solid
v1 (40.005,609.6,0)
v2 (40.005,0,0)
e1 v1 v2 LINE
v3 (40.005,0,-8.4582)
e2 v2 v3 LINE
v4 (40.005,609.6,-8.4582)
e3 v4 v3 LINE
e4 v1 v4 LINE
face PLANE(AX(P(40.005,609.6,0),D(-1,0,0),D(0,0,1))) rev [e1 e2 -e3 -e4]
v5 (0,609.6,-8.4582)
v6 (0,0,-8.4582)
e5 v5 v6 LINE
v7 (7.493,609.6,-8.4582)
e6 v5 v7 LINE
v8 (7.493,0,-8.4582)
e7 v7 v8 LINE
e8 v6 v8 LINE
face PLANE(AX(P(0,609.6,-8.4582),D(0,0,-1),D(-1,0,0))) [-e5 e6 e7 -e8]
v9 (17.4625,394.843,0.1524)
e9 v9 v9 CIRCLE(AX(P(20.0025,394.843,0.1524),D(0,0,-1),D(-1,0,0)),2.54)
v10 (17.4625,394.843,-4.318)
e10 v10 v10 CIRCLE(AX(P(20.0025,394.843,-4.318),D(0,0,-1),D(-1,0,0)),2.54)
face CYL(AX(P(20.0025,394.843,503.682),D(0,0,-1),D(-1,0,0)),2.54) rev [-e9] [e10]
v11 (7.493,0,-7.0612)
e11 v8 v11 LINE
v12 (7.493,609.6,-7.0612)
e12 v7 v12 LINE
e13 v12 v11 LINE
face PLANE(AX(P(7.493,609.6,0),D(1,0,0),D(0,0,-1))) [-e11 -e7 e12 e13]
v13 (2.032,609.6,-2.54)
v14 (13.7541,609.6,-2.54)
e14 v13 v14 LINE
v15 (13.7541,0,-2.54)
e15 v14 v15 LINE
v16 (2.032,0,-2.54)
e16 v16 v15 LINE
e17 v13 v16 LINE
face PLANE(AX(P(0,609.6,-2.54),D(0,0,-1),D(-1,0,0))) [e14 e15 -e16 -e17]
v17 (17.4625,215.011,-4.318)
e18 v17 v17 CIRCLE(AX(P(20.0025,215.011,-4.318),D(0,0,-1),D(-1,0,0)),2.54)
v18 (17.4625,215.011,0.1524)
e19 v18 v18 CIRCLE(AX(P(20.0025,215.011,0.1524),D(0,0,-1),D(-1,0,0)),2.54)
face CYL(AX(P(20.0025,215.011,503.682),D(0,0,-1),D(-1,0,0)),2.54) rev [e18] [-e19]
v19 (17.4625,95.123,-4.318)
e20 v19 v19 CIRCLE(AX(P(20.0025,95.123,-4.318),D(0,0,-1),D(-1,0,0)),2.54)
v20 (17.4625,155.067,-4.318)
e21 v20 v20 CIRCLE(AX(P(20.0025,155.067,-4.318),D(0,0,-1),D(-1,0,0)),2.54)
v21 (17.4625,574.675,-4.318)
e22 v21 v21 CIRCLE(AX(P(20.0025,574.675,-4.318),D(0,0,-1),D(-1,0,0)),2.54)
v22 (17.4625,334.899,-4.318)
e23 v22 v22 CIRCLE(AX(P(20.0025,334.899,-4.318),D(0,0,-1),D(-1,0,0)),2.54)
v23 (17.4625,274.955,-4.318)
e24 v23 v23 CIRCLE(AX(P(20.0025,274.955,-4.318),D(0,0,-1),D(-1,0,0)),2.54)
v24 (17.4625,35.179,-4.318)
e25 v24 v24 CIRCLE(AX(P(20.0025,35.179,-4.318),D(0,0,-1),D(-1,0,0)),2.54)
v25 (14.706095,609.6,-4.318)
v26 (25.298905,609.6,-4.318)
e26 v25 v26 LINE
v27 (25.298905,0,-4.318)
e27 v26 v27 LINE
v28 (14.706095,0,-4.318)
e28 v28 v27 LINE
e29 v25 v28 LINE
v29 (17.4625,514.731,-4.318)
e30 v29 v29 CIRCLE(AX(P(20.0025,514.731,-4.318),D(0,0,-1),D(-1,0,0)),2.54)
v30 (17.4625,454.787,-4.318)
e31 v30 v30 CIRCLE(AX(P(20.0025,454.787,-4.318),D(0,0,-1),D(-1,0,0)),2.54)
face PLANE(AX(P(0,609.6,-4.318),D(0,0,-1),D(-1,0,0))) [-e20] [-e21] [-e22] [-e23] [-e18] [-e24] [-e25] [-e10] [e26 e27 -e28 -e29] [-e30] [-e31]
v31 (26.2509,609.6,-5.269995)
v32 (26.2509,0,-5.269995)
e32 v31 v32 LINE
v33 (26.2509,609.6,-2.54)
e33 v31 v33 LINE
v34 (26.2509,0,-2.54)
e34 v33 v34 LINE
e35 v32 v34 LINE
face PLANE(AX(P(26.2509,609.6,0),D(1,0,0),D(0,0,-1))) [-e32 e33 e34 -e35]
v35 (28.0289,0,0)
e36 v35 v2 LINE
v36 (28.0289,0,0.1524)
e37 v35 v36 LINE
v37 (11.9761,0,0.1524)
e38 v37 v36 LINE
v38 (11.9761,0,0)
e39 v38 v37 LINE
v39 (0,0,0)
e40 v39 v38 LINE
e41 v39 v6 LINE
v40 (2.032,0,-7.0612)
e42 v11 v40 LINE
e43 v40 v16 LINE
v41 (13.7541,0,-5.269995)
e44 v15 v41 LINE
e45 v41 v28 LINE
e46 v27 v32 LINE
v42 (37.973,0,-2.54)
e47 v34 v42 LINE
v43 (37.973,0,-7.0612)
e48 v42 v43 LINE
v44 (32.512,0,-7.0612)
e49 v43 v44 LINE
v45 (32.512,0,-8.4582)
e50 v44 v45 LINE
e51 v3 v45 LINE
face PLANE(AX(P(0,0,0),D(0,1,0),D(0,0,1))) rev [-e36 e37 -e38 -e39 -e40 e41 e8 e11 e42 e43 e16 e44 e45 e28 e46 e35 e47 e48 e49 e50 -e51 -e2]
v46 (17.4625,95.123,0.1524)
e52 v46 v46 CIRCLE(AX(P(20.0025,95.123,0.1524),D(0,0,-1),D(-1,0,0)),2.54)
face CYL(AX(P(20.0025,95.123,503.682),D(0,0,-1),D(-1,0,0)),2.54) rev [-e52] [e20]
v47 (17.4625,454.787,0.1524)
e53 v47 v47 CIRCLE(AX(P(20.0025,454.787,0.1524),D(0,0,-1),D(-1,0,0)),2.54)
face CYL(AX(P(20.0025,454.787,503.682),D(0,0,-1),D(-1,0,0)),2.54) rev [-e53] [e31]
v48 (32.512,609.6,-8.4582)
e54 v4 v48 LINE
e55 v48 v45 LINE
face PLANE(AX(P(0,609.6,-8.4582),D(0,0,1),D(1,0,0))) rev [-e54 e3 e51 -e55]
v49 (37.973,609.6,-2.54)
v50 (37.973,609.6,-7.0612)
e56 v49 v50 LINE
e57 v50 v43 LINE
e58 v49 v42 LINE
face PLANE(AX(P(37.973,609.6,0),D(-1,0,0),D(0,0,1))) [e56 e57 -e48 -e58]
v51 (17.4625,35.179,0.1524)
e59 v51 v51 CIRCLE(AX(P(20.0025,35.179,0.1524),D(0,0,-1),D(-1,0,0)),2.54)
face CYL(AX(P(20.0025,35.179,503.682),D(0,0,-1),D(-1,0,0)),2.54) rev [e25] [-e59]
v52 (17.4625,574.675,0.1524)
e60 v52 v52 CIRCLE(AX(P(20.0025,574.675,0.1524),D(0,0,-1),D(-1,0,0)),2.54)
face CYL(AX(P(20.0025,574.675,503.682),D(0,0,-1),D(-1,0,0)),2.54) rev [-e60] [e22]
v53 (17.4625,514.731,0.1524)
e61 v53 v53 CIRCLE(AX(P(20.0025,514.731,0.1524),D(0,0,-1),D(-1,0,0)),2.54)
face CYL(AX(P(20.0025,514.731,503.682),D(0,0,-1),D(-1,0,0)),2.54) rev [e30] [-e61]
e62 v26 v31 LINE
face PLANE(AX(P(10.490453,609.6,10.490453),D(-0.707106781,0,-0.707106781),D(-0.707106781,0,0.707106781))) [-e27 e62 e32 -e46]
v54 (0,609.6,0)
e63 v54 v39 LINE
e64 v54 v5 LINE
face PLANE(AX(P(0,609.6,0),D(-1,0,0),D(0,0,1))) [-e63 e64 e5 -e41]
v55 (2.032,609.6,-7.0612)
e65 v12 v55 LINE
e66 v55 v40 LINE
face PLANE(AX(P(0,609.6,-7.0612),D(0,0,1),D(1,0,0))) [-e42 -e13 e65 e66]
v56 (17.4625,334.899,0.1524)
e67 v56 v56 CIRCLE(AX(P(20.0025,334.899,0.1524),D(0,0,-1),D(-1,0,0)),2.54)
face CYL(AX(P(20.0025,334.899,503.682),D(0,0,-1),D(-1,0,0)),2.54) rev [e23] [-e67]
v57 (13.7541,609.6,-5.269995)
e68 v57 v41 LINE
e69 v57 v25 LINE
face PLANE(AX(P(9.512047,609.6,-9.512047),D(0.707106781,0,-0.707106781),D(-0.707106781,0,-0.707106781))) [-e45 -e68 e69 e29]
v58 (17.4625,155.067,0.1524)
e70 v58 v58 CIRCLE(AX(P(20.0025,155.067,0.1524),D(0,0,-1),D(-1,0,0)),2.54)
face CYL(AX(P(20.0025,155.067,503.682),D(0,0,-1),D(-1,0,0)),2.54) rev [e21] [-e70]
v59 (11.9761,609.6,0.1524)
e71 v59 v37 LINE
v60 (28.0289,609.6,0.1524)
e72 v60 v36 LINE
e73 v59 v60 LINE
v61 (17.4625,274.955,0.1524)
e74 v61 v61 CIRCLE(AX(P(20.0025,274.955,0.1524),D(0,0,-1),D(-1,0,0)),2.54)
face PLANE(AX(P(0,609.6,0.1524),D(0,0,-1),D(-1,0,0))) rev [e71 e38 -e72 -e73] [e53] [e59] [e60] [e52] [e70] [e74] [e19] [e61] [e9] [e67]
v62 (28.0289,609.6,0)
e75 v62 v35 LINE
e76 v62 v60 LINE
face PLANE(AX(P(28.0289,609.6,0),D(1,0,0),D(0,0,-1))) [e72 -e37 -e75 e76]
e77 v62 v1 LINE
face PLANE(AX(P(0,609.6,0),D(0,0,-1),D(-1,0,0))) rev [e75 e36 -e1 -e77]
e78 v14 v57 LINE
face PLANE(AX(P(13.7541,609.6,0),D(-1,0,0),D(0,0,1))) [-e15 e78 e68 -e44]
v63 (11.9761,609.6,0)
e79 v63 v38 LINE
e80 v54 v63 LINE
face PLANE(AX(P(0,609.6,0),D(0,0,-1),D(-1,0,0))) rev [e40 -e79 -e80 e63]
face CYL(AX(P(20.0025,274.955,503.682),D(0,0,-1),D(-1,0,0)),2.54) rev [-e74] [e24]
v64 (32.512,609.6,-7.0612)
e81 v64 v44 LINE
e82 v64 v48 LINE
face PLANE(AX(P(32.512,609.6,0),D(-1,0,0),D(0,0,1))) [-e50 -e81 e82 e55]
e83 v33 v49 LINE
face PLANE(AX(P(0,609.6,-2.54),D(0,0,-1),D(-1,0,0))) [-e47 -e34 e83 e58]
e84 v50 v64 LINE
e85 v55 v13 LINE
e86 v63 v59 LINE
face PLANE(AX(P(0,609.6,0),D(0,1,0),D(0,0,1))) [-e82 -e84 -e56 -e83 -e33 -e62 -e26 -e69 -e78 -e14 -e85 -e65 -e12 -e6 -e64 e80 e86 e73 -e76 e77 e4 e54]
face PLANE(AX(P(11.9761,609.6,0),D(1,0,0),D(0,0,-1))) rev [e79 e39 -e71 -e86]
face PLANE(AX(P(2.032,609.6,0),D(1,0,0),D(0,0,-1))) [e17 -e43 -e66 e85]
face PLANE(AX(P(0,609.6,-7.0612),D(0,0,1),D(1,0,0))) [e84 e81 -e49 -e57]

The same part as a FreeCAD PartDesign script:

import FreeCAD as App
import Part
import Sketcher
Q = App.Units.Quantity

doc = App.newDocument("Part")
params = doc.addObject("Spreadsheet::Sheet", "Params")
for row, (alias, value) in enumerate([
    ("sketch1_width", "0.215 in"),
    ("sketch1_width2", "0.295 in"),
    ("sketch1_width3", "0.632 in"),
    ("sketch1_height", "0.055 in"),
    ("sketch1_height2", "0.178 in"),
    ("pad1_length", "24 in"),
    ("sketch2_diameter", "0.2 in"),
    ("pocket1_length", "20 in"),
], start=1):
    params.set(f"A{row}", alias)
    params.set(f"B{row}", "=" + value)
    params.setAlias(f"B{row}", alias)

body = doc.addObject("PartDesign::Body", "Body")

sketch1 = body.newObject("Sketcher::SketchObject", "Sketch")
sketch1.AttachmentSupport = (doc.getObject("XZ_Plane"), [""])
sketch1.MapMode = "FlatFace"
sketch1.addGeometry(Part.LineSegment(App.Vector(32.512, -8.4582, 0), App.Vector(32.512, -7.0612, 0)), False)
sketch1.addGeometry(Part.LineSegment(App.Vector(32.512, -7.0612, 0), App.Vector(37.973, -7.0612, 0)), False)
sketch1.addGeometry(Part.LineSegment(App.Vector(37.973, -7.0612, 0), App.Vector(37.973, -2.54, 0)), False)
sketch1.addGeometry(Part.LineSegment(App.Vector(37.973, -2.54, 0), App.Vector(26.2509, -2.54, 0)), False)
sketch1.addGeometry(Part.LineSegment(App.Vector(26.2509, -2.54, 0), App.Vector(26.2509, -5.269995, 0)), False)
sketch1.addGeometry(Part.LineSegment(App.Vector(26.2509, -5.269995, 0), App.Vector(25.298905, -4.318, 0)), False)
sketch1.addGeometry(Part.LineSegment(App.Vector(25.298905, -4.318, 0), App.Vector(14.706095, -4.318, 0)), False)
sketch1.addGeometry(Part.LineSegment(App.Vector(14.706095, -4.318, 0), App.Vector(13.7541, -5.269995, 0)), False)
sketch1.addGeometry(Part.LineSegment(App.Vector(13.7541, -5.269995, 0), App.Vector(13.7541, -2.54, 0)), False)
sketch1.addGeometry(Part.LineSegment(App.Vector(13.7541, -2.54, 0), App.Vector(2.032, -2.54, 0)), False)
sketch1.addGeometry(Part.LineSegment(App.Vector(2.032, -2.54, 0), App.Vector(2.032, -7.0612, 0)), False)
sketch1.addGeometry(Part.LineSegment(App.Vector(2.032, -7.0612, 0), App.Vector(7.493, -7.0612, 0)), False)
sketch1.addGeometry(Part.LineSegment(App.Vector(7.493, -7.0612, 0), App.Vector(7.493, -8.4582, 0)), False)
sketch1.addGeometry(Part.LineSegment(App.Vector(7.493, -8.4582, 0), App.Vector(0, -8.4582, 0)), False)
sketch1.addGeometry(Part.LineSegment(App.Vector(0, -8.4582, 0), App.Vector(0, 0, 0)), False)
sketch1.addGeometry(Part.LineSegment(App.Vector(0, 0, 0), App.Vector(11.9761, 0, 0)), False)
sketch1.addGeometry(Part.LineSegment(App.Vector(11.9761, 0, 0), App.Vector(11.9761, 0.1524, 0)), False)
sketch1.addGeometry(Part.LineSegment(App.Vector(11.9761, 0.1524, 0), App.Vector(28.0289, 0.1524, 0)), False)
sketch1.addGeometry(Part.LineSegment(App.Vector(28.0289, 0.1524, 0), App.Vector(28.0289, 0, 0)), False)
sketch1.addGeometry(Part.LineSegment(App.Vector(28.0289, 0, 0), App.Vector(40.005, 0, 0)), False)
sketch1.addGeometry(Part.LineSegment(App.Vector(40.005, 0, 0), App.Vector(40.005, -8.4582, 0)), False)
sketch1.addGeometry(Part.LineSegment(App.Vector(40.005, -8.4582, 0), App.Vector(32.512, -8.4582, 0)), False)
sketch1.addConstraint(Sketcher.Constraint("Coincident", 0, 2, 1, 1))
sketch1.addConstraint(Sketcher.Constraint("Coincident", 1, 2, 2, 1))
sketch1.addConstraint(Sketcher.Constraint("Coincident", 2, 2, 3, 1))
sketch1.addConstraint(Sketcher.Constraint("Coincident", 3, 2, 4, 1))
sketch1.addConstraint(Sketcher.Constraint("Coincident", 4, 2, 5, 1))
sketch1.addConstraint(Sketcher.Constraint("Coincident", 5, 2, 6, 1))
sketch1.addConstraint(Sketcher.Constraint("Coincident", 6, 2, 7, 1))
sketch1.addConstraint(Sketcher.Constraint("Coincident", 7, 2, 8, 1))
sketch1.addConstraint(Sketcher.Constraint("Coincident", 8, 2, 9, 1))
sketch1.addConstraint(Sketcher.Constraint("Coincident", 9, 2, 10, 1))
sketch1.addConstraint(Sketcher.Constraint("Coincident", 10, 2, 11, 1))
sketch1.addConstraint(Sketcher.Constraint("Coincident", 11, 2, 12, 1))
sketch1.addConstraint(Sketcher.Constraint("Coincident", 12, 2, 13, 1))
sketch1.addConstraint(Sketcher.Constraint("Coincident", 13, 2, 14, 1))
sketch1.addConstraint(Sketcher.Constraint("Coincident", 14, 2, 15, 1))
sketch1.addConstraint(Sketcher.Constraint("Coincident", 15, 2, 16, 1))
sketch1.addConstraint(Sketcher.Constraint("Coincident", 16, 2, 17, 1))
sketch1.addConstraint(Sketcher.Constraint("Coincident", 17, 2, 18, 1))
sketch1.addConstraint(Sketcher.Constraint("Coincident", 18, 2, 19, 1))
sketch1.addConstraint(Sketcher.Constraint("Coincident", 19, 2, 20, 1))
sketch1.addConstraint(Sketcher.Constraint("Coincident", 20, 2, 21, 1))
sketch1.addConstraint(Sketcher.Constraint("Coincident", 21, 2, 0, 1))
sketch1.addConstraint(Sketcher.Constraint("Vertical", 0))
sketch1.addConstraint(Sketcher.Constraint("Horizontal", 1))
sketch1.addConstraint(Sketcher.Constraint("Vertical", 2))
sketch1.addConstraint(Sketcher.Constraint("Horizontal", 3))
sketch1.addConstraint(Sketcher.Constraint("Vertical", 4))
sketch1.addConstraint(Sketcher.Constraint("Horizontal", 6))
sketch1.addConstraint(Sketcher.Constraint("Vertical", 8))
sketch1.addConstraint(Sketcher.Constraint("Horizontal", 9))
sketch1.addConstraint(Sketcher.Constraint("Vertical", 10))
sketch1.addConstraint(Sketcher.Constraint("Horizontal", 11))
sketch1.addConstraint(Sketcher.Constraint("Vertical", 12))
sketch1.addConstraint(Sketcher.Constraint("Horizontal", 13))
sketch1.addConstraint(Sketcher.Constraint("Vertical", 14))
sketch1.addConstraint(Sketcher.Constraint("Horizontal", 15))
sketch1.addConstraint(Sketcher.Constraint("Vertical", 16))
sketch1.addConstraint(Sketcher.Constraint("Horizontal", 17))
sketch1.addConstraint(Sketcher.Constraint("Vertical", 18))
sketch1.addConstraint(Sketcher.Constraint("Horizontal", 19))
sketch1.addConstraint(Sketcher.Constraint("Vertical", 20))
sketch1.addConstraint(Sketcher.Constraint("Horizontal", 21))
sketch1.addConstraint(Sketcher.Constraint("Coincident", 14, 2, -1, 1))
sketch1.addConstraint(Sketcher.Constraint("PointOnObject", 18, 2, -1))
sketch1.addConstraint(Sketcher.Constraint("Perpendicular", 5, 7))
sketch1.addConstraint(Sketcher.Constraint("Horizontal", 4, 2, 7, 2))
sketch1.addConstraint(Sketcher.Constraint("Horizontal", 3, 2, 8, 2))
sketch1.addConstraint(Sketcher.Constraint("Horizontal", 1, 2, 10, 2))
sketch1.addConstraint(Sketcher.Constraint("Horizontal", 13, 2, 20, 2))
sketch1.addConstraint(Sketcher.Constraint("Equal", 3, 9))
sketch1.addConstraint(Sketcher.Constraint("Equal", 1, 11))
sketch1.addConstraint(Sketcher.Constraint("Equal", 15, 19))
sketch1.addConstraint(Sketcher.Constraint("Equal", 13, 21))
sketch1.addConstraint(Sketcher.Constraint("Equal", 5, 7))
sketch1.addConstraint(Sketcher.Constraint("DistanceY", 2, 2, -1, 1, Q("0.1 in")))
sketch1.addConstraint(Sketcher.Constraint("DistanceX", 1, 1, 1, 2, Q("0.215 in")))
sketch1.addConstraint(Sketcher.Constraint("DistanceX", 13, 2, 13, 1, Q("0.295 in")))
sketch1.addConstraint(Sketcher.Constraint("DistanceX", 17, 1, 17, 2, Q("0.632 in")))
sketch1.addConstraint(Sketcher.Constraint("DistanceY", 0, 1, 0, 2, Q("0.055 in")))
sketch1.addConstraint(Sketcher.Constraint("DistanceY", 2, 1, 2, 2, Q("0.178 in")))
sketch1.addConstraint(Sketcher.Constraint("DistanceY", 16, 1, 16, 2, Q("0.006 in")))
sketch1.addConstraint(Sketcher.Constraint("DistanceX", -1, 1, 0, 2, Q("1.28 in")))
sketch1.addConstraint(Sketcher.Constraint("DistanceY", 5, 2, -1, 1, Q("0.17 in")))
sketch1.addConstraint(Sketcher.Constraint("DistanceX", 15, 2, 8, 2, Q("0.07 in")))
sketch1.addConstraint(Sketcher.Constraint("DistanceX", 6, 2, 6, 1, 10.592811))
sketch1.setExpression("Constraints[55]", "Params.sketch1_width")
sketch1.setExpression("Constraints[56]", "Params.sketch1_width2")
sketch1.setExpression("Constraints[57]", "Params.sketch1_width3")
sketch1.setExpression("Constraints[58]", "Params.sketch1_height")
sketch1.setExpression("Constraints[59]", "Params.sketch1_height2")
pad1 = body.newObject("PartDesign::Pad", "Pad")
pad1.Profile = sketch1
pad1.setExpression("Length", "Params.pad1_length")
pad1.Reversed = True

sketch2 = body.newObject("Sketcher::SketchObject", "Sketch001")
sketch2.AttachmentSupport = (doc.getObject("XY_Plane"), [""])
sketch2.MapMode = "FlatFace"
sketch2.AttachmentOffset = App.Placement(App.Vector(0, 0, -0.17 * 25.4), App.Rotation())
sketch2.addGeometry(Part.Circle(App.Vector(20.0025, 574.675, 0), App.Vector(0, 0, 1), 2.54), False)
sketch2.addGeometry(Part.Circle(App.Vector(20.0025, 514.731, 0), App.Vector(0, 0, 1), 2.54), False)
sketch2.addGeometry(Part.Circle(App.Vector(20.0025, 454.787, 0), App.Vector(0, 0, 1), 2.54), False)
sketch2.addGeometry(Part.Circle(App.Vector(20.0025, 394.843, 0), App.Vector(0, 0, 1), 2.54), False)
sketch2.addGeometry(Part.Circle(App.Vector(20.0025, 334.899, 0), App.Vector(0, 0, 1), 2.54), False)
sketch2.addGeometry(Part.Circle(App.Vector(20.0025, 274.955, 0), App.Vector(0, 0, 1), 2.54), False)
sketch2.addGeometry(Part.Circle(App.Vector(20.0025, 215.011, 0), App.Vector(0, 0, 1), 2.54), False)
sketch2.addGeometry(Part.Circle(App.Vector(20.0025, 155.067, 0), App.Vector(0, 0, 1), 2.54), False)
sketch2.addGeometry(Part.Circle(App.Vector(20.0025, 95.123, 0), App.Vector(0, 0, 1), 2.54), False)
sketch2.addGeometry(Part.Circle(App.Vector(20.0025, 35.179, 0), App.Vector(0, 0, 1), 2.54), False)
sketch2.addConstraint(Sketcher.Constraint("Equal", 0, 1))
sketch2.addConstraint(Sketcher.Constraint("Equal", 1, 2))
sketch2.addConstraint(Sketcher.Constraint("Equal", 2, 3))
sketch2.addConstraint(Sketcher.Constraint("Equal", 3, 4))
sketch2.addConstraint(Sketcher.Constraint("Equal", 4, 5))
sketch2.addConstraint(Sketcher.Constraint("Equal", 5, 6))
sketch2.addConstraint(Sketcher.Constraint("Equal", 6, 7))
sketch2.addConstraint(Sketcher.Constraint("Equal", 7, 8))
sketch2.addConstraint(Sketcher.Constraint("Equal", 8, 9))
sketch2.addConstraint(Sketcher.Constraint("Vertical", 0, 3, 1, 3))
sketch2.addConstraint(Sketcher.Constraint("Vertical", 1, 3, 2, 3))
sketch2.addConstraint(Sketcher.Constraint("Vertical", 2, 3, 3, 3))
sketch2.addConstraint(Sketcher.Constraint("Vertical", 3, 3, 4, 3))
sketch2.addConstraint(Sketcher.Constraint("Vertical", 4, 3, 5, 3))
sketch2.addConstraint(Sketcher.Constraint("Vertical", 5, 3, 6, 3))
sketch2.addConstraint(Sketcher.Constraint("Vertical", 6, 3, 7, 3))
sketch2.addConstraint(Sketcher.Constraint("Vertical", 7, 3, 8, 3))
sketch2.addConstraint(Sketcher.Constraint("Vertical", 8, 3, 9, 3))
sketch2.addConstraint(Sketcher.Constraint("Diameter", 0, Q("0.2 in")))
sketch2.addConstraint(Sketcher.Constraint("DistanceY", 5, 3, 0, 3, Q("11.8 in")))
sketch2.addConstraint(Sketcher.Constraint("DistanceY", 6, 3, 1, 3, Q("11.8 in")))
sketch2.addConstraint(Sketcher.Constraint("DistanceY", 7, 3, 2, 3, Q("11.8 in")))
sketch2.addConstraint(Sketcher.Constraint("DistanceY", 8, 3, 3, 3, Q("11.8 in")))
sketch2.addConstraint(Sketcher.Constraint("DistanceY", 9, 3, 4, 3, Q("11.8 in")))
sketch2.addConstraint(Sketcher.Constraint("DistanceY", 1, 3, 0, 3, Q("2.36 in")))
sketch2.addConstraint(Sketcher.Constraint("DistanceY", 2, 3, 1, 3, Q("2.36 in")))
sketch2.addConstraint(Sketcher.Constraint("DistanceY", 3, 3, 2, 3, Q("2.36 in")))
sketch2.addConstraint(Sketcher.Constraint("DistanceY", 4, 3, 3, 3, Q("2.36 in")))
sketch2.addConstraint(Sketcher.Constraint("DistanceY", -1, 1, 0, 3, Q("22.625 in")))
sketch2.addConstraint(Sketcher.Constraint("DistanceX", -1, 1, 0, 3, Q("0.7875 in")))
sketch2.setExpression("Constraints[18]", "Params.sketch2_diameter")
pocket1 = body.newObject("PartDesign::Pocket", "Pocket")
pocket1.Profile = sketch2
pocket1.setExpression("Length", "Params.pocket1_length")
pocket1.Reversed = True

doc.recompute()
